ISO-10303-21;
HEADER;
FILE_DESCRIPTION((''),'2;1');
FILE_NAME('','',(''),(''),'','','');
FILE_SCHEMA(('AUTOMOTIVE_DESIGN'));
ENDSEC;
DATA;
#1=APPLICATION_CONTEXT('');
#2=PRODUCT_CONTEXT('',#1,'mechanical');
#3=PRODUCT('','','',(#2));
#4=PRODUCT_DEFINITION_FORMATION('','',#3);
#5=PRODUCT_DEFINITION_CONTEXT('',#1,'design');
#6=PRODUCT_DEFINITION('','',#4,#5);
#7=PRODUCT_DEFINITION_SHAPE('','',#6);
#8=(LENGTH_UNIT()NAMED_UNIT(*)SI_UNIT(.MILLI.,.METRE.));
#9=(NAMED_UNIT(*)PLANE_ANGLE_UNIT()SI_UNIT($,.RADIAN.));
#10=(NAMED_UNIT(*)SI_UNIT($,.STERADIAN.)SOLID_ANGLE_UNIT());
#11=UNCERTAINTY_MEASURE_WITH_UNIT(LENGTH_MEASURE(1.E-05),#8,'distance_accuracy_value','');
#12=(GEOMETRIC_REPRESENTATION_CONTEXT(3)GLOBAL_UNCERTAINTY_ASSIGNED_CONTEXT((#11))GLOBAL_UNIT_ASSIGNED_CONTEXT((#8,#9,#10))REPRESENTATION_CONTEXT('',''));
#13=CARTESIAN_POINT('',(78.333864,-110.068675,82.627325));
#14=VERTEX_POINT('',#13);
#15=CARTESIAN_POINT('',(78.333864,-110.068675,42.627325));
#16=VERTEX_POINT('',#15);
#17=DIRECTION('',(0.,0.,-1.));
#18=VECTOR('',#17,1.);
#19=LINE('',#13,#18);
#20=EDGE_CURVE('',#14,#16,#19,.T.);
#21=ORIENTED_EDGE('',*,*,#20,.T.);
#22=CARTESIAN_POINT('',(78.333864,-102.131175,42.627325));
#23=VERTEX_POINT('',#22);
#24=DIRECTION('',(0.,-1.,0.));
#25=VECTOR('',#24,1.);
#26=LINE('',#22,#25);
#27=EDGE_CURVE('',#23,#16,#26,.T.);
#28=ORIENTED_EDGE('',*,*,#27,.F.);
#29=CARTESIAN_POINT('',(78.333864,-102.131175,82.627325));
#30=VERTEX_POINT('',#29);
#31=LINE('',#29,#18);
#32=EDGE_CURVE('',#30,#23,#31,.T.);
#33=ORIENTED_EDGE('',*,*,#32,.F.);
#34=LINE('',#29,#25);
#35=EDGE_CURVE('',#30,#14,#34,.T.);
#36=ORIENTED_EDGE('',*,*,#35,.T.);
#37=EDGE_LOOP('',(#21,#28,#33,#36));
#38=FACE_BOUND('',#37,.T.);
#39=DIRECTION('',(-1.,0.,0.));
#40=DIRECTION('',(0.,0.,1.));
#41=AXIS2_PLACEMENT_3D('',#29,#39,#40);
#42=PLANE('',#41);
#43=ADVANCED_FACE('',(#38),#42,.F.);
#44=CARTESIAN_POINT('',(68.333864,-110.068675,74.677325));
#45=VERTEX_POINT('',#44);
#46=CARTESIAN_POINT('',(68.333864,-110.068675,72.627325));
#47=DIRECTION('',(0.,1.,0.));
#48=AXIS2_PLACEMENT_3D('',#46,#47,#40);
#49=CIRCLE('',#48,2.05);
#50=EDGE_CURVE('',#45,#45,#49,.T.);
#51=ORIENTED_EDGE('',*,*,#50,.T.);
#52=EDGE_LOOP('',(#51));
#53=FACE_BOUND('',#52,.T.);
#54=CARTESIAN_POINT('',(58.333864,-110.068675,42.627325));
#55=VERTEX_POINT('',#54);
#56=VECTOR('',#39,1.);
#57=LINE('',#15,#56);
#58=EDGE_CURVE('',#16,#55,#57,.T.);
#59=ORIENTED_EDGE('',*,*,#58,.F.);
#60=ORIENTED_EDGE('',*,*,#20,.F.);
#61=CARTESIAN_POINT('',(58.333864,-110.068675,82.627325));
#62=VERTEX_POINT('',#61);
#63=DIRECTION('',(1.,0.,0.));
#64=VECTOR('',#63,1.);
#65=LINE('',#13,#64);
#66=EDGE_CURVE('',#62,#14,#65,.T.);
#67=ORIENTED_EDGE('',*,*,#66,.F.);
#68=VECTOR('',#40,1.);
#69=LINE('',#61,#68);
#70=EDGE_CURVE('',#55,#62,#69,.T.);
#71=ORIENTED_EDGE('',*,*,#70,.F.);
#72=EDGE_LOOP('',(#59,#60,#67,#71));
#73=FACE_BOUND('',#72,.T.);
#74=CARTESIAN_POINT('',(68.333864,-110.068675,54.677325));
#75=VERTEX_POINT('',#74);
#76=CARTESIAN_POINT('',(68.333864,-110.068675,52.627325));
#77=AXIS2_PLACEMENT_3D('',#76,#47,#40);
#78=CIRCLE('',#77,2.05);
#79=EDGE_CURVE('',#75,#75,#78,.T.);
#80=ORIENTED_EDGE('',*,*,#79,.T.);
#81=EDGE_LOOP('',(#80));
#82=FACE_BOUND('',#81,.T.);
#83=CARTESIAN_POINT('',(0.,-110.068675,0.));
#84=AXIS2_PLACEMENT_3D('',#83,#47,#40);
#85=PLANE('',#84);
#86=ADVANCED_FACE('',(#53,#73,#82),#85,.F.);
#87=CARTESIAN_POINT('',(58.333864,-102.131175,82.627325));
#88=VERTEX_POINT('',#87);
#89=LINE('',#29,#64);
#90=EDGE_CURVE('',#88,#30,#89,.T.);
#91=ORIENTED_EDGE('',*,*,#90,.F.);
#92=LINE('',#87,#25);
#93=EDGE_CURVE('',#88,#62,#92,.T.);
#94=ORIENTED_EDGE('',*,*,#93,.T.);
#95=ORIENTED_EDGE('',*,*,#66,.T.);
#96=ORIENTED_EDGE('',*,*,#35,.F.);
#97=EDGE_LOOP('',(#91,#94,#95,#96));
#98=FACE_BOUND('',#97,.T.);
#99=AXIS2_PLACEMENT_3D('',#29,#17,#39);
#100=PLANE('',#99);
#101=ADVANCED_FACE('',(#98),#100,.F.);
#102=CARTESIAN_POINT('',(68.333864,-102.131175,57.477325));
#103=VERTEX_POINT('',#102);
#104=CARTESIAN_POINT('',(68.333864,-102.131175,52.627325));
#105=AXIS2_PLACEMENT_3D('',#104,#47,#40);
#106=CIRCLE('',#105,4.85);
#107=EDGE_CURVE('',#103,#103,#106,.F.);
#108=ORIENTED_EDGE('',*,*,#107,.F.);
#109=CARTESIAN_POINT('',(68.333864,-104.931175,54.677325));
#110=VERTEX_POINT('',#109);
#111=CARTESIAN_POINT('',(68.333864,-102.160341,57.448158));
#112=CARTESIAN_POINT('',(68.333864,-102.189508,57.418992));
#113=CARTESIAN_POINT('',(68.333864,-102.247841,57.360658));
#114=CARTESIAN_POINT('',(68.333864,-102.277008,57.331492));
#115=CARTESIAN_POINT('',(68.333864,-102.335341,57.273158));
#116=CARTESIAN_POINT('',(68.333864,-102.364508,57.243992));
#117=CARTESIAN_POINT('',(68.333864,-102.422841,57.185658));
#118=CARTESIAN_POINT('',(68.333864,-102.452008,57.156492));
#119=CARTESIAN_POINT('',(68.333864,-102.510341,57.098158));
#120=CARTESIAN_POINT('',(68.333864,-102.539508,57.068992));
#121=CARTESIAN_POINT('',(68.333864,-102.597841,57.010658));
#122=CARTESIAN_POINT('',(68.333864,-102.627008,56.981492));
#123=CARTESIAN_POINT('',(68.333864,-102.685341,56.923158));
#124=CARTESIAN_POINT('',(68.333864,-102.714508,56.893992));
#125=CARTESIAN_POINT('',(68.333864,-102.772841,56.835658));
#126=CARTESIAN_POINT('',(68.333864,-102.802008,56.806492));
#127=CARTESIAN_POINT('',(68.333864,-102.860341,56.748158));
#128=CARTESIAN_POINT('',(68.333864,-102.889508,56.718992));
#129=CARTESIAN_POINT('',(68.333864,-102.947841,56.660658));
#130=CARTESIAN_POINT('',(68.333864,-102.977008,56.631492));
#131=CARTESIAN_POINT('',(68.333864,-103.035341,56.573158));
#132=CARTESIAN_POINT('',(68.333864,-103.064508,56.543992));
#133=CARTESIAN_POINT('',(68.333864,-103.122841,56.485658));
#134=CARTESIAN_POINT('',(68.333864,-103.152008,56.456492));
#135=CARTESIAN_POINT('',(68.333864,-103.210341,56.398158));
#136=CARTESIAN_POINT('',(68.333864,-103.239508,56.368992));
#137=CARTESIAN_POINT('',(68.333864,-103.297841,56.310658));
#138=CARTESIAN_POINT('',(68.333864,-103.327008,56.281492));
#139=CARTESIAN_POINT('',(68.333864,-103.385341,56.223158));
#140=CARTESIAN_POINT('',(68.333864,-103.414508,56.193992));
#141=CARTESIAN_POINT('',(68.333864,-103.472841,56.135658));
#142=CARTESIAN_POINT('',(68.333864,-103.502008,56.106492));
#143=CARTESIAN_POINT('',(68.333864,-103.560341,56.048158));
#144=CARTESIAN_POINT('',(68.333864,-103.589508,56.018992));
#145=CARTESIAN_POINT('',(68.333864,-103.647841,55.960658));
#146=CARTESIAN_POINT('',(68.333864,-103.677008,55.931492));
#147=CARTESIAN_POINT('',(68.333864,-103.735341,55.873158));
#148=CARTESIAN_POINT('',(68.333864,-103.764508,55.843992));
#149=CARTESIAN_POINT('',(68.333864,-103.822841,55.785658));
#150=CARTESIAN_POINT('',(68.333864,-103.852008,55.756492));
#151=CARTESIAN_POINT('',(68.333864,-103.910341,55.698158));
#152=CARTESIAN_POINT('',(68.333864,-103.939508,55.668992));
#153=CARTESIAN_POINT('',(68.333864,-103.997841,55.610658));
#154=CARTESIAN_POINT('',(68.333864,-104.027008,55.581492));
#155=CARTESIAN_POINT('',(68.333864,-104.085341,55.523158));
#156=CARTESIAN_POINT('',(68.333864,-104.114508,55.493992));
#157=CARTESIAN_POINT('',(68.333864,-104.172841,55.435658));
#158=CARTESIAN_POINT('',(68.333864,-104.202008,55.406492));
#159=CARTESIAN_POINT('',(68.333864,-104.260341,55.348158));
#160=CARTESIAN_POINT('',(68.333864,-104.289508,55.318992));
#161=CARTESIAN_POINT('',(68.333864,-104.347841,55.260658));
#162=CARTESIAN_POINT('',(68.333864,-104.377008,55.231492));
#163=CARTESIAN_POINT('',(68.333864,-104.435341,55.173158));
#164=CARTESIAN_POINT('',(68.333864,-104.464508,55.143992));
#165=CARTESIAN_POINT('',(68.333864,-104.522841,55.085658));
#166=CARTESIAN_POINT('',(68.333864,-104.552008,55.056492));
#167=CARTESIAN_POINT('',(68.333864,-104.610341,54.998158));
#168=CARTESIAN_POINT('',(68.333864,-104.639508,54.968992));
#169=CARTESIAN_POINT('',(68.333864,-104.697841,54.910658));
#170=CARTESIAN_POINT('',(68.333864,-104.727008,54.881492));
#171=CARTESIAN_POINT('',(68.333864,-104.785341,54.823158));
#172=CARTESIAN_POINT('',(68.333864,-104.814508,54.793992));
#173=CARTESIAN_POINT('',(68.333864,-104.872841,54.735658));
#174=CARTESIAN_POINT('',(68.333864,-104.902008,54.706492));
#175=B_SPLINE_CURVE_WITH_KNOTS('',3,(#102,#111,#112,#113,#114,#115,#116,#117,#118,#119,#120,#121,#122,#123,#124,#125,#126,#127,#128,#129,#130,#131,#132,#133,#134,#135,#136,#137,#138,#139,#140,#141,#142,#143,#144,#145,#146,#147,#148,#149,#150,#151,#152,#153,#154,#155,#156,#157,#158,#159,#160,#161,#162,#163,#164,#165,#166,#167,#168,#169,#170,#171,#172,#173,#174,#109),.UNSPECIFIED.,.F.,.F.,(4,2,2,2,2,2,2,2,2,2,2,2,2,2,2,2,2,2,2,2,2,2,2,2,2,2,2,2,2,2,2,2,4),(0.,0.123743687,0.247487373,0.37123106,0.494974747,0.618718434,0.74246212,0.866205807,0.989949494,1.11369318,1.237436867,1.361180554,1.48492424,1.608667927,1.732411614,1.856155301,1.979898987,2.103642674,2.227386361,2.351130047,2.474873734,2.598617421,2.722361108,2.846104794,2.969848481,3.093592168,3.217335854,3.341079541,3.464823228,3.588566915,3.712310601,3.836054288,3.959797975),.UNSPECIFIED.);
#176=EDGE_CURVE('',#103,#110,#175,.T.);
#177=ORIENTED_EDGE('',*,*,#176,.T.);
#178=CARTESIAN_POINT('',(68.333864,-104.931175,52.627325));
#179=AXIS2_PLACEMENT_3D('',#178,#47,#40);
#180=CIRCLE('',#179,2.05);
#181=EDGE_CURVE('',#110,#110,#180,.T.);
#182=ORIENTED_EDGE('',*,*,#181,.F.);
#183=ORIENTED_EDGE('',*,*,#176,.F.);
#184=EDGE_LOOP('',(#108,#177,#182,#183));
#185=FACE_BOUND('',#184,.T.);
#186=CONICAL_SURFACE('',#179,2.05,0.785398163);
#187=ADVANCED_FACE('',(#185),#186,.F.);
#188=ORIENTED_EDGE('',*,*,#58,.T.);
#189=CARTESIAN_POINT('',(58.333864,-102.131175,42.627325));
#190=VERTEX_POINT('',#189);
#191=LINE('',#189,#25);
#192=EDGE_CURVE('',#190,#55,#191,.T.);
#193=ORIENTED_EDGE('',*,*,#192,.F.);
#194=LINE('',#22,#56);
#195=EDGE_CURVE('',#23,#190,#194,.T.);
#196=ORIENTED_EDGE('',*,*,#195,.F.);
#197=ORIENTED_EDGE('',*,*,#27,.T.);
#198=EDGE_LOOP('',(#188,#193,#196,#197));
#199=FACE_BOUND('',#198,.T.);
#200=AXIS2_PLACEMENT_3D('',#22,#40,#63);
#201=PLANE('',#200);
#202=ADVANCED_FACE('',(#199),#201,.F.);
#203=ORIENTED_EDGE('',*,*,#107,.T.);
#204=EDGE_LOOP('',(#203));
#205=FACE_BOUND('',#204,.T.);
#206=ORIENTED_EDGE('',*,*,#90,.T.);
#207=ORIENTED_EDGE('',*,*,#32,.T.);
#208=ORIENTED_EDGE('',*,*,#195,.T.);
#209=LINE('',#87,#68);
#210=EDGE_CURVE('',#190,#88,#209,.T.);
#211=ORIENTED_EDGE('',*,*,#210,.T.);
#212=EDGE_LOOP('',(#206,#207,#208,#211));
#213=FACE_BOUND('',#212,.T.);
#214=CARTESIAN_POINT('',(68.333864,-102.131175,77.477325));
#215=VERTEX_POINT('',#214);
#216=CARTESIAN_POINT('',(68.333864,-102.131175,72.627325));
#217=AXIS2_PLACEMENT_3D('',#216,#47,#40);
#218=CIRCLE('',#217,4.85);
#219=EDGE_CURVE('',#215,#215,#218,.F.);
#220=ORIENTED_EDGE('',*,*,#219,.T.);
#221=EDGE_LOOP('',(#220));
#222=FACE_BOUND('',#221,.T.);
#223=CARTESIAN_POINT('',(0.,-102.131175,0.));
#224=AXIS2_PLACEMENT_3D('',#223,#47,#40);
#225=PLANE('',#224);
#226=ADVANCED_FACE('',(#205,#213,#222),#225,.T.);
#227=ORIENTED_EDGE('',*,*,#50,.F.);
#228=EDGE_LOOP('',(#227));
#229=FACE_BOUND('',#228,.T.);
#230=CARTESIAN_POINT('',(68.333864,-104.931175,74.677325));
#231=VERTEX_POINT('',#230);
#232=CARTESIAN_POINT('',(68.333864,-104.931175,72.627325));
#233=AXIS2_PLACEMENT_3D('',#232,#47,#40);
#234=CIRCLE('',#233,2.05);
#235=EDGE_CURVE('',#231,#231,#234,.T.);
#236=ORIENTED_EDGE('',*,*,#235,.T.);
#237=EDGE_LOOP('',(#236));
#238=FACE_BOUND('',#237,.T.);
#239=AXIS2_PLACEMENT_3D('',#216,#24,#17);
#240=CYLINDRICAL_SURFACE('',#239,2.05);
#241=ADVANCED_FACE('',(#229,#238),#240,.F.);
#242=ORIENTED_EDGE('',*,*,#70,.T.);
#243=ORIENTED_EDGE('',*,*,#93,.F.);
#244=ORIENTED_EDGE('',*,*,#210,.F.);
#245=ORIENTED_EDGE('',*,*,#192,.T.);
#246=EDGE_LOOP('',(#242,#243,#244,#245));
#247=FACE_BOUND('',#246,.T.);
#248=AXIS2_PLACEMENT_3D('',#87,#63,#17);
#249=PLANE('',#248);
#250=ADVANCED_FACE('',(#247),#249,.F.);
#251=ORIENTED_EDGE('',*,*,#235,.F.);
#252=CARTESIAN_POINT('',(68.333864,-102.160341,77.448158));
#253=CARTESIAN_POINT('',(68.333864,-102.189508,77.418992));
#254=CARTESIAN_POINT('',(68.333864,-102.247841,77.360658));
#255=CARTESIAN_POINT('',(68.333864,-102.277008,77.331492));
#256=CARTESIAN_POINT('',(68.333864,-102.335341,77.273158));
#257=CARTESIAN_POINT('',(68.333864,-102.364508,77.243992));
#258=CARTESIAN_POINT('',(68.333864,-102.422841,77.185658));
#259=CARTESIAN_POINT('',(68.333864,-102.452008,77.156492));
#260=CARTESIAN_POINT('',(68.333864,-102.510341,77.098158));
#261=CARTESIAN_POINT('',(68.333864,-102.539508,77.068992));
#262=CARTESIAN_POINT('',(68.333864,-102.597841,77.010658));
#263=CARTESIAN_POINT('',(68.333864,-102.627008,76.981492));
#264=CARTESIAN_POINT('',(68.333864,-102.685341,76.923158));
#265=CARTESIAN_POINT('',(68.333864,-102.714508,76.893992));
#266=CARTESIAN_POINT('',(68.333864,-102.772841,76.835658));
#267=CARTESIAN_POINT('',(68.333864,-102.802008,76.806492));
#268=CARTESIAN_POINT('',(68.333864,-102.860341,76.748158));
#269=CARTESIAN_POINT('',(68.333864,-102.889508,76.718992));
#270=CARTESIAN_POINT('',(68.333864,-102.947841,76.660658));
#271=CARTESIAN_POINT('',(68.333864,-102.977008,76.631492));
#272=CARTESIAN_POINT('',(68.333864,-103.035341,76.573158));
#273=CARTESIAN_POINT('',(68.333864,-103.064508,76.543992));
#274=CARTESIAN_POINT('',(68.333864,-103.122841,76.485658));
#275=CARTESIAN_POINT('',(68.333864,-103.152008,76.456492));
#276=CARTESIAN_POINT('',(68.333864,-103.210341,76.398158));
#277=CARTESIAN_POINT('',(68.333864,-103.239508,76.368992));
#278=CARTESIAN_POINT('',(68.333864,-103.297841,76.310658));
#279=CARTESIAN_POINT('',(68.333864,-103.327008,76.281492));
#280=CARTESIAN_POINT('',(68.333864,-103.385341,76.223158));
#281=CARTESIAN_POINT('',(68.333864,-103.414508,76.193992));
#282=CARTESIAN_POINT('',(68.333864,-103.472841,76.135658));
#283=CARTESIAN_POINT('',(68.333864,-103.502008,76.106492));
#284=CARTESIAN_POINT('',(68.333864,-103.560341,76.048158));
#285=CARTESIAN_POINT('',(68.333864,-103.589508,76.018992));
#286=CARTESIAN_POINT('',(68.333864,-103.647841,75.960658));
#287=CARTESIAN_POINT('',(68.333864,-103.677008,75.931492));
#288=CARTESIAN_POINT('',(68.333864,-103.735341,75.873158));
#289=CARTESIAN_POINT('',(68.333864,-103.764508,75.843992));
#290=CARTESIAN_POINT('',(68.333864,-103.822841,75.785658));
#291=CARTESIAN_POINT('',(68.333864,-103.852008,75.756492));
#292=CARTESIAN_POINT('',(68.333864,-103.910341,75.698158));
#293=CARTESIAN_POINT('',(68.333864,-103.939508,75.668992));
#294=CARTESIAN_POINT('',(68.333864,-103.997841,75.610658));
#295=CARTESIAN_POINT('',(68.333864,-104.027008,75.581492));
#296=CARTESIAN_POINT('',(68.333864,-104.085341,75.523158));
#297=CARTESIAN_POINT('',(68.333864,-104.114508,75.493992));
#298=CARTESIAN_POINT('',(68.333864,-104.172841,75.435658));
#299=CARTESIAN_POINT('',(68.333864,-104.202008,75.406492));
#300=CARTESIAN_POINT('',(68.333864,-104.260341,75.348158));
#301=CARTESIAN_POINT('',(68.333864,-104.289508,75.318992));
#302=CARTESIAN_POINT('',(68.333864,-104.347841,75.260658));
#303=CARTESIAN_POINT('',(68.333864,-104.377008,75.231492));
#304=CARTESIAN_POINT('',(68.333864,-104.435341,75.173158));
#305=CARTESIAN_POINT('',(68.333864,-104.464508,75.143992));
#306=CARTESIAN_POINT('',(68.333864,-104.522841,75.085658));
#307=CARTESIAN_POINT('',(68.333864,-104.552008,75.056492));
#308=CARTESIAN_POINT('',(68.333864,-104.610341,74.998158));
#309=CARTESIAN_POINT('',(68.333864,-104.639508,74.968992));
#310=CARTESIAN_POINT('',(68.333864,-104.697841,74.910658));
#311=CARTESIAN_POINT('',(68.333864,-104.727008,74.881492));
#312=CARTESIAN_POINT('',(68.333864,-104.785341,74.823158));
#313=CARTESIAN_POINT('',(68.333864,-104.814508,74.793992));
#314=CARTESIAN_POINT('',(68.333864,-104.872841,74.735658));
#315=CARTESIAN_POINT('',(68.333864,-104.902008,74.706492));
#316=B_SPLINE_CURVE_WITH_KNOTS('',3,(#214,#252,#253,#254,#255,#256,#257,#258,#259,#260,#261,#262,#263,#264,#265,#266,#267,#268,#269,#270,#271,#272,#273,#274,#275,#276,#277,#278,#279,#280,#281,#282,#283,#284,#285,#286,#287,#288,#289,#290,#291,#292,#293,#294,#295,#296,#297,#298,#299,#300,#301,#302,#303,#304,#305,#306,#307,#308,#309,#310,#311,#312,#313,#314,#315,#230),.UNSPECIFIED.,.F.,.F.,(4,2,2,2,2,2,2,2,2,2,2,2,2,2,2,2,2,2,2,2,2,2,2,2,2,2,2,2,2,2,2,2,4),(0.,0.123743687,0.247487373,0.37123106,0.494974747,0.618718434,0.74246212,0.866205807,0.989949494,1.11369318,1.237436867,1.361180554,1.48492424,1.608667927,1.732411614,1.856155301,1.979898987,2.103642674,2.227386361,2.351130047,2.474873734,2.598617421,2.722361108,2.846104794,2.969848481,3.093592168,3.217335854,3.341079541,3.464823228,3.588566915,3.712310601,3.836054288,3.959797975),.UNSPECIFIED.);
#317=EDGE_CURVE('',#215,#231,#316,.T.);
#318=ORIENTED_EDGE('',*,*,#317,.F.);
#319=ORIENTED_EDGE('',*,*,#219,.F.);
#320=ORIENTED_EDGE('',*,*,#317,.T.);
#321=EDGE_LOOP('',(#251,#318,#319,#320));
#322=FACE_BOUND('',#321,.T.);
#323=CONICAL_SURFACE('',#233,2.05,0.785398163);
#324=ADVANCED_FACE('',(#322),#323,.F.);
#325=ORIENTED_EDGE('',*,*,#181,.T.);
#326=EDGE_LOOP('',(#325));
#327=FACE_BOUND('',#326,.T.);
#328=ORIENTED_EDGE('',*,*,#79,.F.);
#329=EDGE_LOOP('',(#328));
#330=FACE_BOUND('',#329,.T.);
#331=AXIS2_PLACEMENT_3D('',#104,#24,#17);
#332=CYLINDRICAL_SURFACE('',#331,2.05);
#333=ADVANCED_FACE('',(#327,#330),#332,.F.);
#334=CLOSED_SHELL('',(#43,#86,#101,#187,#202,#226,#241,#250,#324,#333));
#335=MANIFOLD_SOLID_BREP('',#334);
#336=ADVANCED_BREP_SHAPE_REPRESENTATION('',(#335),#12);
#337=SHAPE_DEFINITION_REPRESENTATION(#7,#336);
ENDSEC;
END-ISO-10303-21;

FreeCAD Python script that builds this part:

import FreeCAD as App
import Part
import Sketcher
Q = App.Units.Quantity


def edges_at(feature, points):
    """Names of the edges that pass closest to the given points."""
    edges = feature.Shape.Edges
    near = lambda p: min(range(len(edges)), key=lambda i: edges[i].distToShape(Part.Vertex(*p))[0])
    return sorted({f"Edge{near(p) + 1}" for p in points})


def add_polygon(sketch, points):
    """Adds a closed chain of lines whose ends are joined by coincident constraints."""
    first, n = sketch.GeometryCount, len(points)
    for a, b in zip(points, points[1:] + points[:1]):
        sketch.addGeometry(Part.LineSegment(App.Vector(*a, 0), App.Vector(*b, 0)), False)
    for i in range(n):
        sketch.addConstraint(Sketcher.Constraint("Coincident", first + i, 2, first + (i + 1) % n, 1))

doc = App.newDocument("Part")
body = doc.addObject("PartDesign::Body", "Body")

# Sketch on XZ plane
sketch1 = body.newObject("Sketcher::SketchObject", "Sketch")
sketch1.AttachmentSupport = (doc.getObject("XZ_Plane"), [""])
sketch1.MapMode = "FlatFace"
sketch1.AttachmentOffset = App.Placement(App.Vector(0, 0, 110.068675), App.Rotation())
add_polygon(sketch1, [(58.333864, 42.627325), (58.333864, 82.627325), (78.333864, 82.627325), (78.333864, 42.627325)])  # lines 0-3
sketch1.addGeometry(Part.Circle(App.Vector(68.333864, 72.627325, 0), App.Vector(0, 0, 1), 2.05), False)  # 4
sketch1.addGeometry(Part.Circle(App.Vector(68.333864, 52.627325, 0), App.Vector(0, 0, 1), 2.05), False)  # 5
sketch1.addConstraint([
    Sketcher.Constraint("Vertical", 0),
    Sketcher.Constraint("Horizontal", 1),
    Sketcher.Constraint("Vertical", 2),
    Sketcher.Constraint("Horizontal", 3),
    Sketcher.Constraint("Equal", 4, 5),
    Sketcher.Constraint("Vertical", 4, 3, 5, 3),
    Sketcher.Constraint("Diameter", 4, Q("4.1 mm")),
    Sketcher.Constraint("DistanceX", 1, 1, 1, 2, Q("20 mm")),
    Sketcher.Constraint("DistanceY", 0, 1, 0, 2, Q("40 mm")),
    Sketcher.Constraint("DistanceY", 5, 3, 4, 3, Q("20 mm")),
    Sketcher.Constraint("DistanceX", 0, 2, 4, 3, Q("10 mm")),
    Sketcher.Constraint("DistanceY", 4, 3, 0, 2, Q("10 mm")),
    Sketcher.Constraint("DistanceX", -1, 1, 4, 3, Q("68.333864 mm")),
    Sketcher.Constraint("DistanceY", -1, 1, 4, 3, Q("72.627325 mm")),
])
pad1 = body.newObject("PartDesign::Pad", "Pad")
pad1.Profile = sketch1
pad1.Length = 7.9375
pad1.Reversed = True
doc.recompute()

chamfer = body.newObject("PartDesign::Chamfer", "Chamfer")
chamfer.Base = (pad1, edges_at(pad1, [(68.334, -102.131, 70.577), (68.334, -102.131, 50.577)]))
chamfer.Size = 2.8

doc.recompute()
